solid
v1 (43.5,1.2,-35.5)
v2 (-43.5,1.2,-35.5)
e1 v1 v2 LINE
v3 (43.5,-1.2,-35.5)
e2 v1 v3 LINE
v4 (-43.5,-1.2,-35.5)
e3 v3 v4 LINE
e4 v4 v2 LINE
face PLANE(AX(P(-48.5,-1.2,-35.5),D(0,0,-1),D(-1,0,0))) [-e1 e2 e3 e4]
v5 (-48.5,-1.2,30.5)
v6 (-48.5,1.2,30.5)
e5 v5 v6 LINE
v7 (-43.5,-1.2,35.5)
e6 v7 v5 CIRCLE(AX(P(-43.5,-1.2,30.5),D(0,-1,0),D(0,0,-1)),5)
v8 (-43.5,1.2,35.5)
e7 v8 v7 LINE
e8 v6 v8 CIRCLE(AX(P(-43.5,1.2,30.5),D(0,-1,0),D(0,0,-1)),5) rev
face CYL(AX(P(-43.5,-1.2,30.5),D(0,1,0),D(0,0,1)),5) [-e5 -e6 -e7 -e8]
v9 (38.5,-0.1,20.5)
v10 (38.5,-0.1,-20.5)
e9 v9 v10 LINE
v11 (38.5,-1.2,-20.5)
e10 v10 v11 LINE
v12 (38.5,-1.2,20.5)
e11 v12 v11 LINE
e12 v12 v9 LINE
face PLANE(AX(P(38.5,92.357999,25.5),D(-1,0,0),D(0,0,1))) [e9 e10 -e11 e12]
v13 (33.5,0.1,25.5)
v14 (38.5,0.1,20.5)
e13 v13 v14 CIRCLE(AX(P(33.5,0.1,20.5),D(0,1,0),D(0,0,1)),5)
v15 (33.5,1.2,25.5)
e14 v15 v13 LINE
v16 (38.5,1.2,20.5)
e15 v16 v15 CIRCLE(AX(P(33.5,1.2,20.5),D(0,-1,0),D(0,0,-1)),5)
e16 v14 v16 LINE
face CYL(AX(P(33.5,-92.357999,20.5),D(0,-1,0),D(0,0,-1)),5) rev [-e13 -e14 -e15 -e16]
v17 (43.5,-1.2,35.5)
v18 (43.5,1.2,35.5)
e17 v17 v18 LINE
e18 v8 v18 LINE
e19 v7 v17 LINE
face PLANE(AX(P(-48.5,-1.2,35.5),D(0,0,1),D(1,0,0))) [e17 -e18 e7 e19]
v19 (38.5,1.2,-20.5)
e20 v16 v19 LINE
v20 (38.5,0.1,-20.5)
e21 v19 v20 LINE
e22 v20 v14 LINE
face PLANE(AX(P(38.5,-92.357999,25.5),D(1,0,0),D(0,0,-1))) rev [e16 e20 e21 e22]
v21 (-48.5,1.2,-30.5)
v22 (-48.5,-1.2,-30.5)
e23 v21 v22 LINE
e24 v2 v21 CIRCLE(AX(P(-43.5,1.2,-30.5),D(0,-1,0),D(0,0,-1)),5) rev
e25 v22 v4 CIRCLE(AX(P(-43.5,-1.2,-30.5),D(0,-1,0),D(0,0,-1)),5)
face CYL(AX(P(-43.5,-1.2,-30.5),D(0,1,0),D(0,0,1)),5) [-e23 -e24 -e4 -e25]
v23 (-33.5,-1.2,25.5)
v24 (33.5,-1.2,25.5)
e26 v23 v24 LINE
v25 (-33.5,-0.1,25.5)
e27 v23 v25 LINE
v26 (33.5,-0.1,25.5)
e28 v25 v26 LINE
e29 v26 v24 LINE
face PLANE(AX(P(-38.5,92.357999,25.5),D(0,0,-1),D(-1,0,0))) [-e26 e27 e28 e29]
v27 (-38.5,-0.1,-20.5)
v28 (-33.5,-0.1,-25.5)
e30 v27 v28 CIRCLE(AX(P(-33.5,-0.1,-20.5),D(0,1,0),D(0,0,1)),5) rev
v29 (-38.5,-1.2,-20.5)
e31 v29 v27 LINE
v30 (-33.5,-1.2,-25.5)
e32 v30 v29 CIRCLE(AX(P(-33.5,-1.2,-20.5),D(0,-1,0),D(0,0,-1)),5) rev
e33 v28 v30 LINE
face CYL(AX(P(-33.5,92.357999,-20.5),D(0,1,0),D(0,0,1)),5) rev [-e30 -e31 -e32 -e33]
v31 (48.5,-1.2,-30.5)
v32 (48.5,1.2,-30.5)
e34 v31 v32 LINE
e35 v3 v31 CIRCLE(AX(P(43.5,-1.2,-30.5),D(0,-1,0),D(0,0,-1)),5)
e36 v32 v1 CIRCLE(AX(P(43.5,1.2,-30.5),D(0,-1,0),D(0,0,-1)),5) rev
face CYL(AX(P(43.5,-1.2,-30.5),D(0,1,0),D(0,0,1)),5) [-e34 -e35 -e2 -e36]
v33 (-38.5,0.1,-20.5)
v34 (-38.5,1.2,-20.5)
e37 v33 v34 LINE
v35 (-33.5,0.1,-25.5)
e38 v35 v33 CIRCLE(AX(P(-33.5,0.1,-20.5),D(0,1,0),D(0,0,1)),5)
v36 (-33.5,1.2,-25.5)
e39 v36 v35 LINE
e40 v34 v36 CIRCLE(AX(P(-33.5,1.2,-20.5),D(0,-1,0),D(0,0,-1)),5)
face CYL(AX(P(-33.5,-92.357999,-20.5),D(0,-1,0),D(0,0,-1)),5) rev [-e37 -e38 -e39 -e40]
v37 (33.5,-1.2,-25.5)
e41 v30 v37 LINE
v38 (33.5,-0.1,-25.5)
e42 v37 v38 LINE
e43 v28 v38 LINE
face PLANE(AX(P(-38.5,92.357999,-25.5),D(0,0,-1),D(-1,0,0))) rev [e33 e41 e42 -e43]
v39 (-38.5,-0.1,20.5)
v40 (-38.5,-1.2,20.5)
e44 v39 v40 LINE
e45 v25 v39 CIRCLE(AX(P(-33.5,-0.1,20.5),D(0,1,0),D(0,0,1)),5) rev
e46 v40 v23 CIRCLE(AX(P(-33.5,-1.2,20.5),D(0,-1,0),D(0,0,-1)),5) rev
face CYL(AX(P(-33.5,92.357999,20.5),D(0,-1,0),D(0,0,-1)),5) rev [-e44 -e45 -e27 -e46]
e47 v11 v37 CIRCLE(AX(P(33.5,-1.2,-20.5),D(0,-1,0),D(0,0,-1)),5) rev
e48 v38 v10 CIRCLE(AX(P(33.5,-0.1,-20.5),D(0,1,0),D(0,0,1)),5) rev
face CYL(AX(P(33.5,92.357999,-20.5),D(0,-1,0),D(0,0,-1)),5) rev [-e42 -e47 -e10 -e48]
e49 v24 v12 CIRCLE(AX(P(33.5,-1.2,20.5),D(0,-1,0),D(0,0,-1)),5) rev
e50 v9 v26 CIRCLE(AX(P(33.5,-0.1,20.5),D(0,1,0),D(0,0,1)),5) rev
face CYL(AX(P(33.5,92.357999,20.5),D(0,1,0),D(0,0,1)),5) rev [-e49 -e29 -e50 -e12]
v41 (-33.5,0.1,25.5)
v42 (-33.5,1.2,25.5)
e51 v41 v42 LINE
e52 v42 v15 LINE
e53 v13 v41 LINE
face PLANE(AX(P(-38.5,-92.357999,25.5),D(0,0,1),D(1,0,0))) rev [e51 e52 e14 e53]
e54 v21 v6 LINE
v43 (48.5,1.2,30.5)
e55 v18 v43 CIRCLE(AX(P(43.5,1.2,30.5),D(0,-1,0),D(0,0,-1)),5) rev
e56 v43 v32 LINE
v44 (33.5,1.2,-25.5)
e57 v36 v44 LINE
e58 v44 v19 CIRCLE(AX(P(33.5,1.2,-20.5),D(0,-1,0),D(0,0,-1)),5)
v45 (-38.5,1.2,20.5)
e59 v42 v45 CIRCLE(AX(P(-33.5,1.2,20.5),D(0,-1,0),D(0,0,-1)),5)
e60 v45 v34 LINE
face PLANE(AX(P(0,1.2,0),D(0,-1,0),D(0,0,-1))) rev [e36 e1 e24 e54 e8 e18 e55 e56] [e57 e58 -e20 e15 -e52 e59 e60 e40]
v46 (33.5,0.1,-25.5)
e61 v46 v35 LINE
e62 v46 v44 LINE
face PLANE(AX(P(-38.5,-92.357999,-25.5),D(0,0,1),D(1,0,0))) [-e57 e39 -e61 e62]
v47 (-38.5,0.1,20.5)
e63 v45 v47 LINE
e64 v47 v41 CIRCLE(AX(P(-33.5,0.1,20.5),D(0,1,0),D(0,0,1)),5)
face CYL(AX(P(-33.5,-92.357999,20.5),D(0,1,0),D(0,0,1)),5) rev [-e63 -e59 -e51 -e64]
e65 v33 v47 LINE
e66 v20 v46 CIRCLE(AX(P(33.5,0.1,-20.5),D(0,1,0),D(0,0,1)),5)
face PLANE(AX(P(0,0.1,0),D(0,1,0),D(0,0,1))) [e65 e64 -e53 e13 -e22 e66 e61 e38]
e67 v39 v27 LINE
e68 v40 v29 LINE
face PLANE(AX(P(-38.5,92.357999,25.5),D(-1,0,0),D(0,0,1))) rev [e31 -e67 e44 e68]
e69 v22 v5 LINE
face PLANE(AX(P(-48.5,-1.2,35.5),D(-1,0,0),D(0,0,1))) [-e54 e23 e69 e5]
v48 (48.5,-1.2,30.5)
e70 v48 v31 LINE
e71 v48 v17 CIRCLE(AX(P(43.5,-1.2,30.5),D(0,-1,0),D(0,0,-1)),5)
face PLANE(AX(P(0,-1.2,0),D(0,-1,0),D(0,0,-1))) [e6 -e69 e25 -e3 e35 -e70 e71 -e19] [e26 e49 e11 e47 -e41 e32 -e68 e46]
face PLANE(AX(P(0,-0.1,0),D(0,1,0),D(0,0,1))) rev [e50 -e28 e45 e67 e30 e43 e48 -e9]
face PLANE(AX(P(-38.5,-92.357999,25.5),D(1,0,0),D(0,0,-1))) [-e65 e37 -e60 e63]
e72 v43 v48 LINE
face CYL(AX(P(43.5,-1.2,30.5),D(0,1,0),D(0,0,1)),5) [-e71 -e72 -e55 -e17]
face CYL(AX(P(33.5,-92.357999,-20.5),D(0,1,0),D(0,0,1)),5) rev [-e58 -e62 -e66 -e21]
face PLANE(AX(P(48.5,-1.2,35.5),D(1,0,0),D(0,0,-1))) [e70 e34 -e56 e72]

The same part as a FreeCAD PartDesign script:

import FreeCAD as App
import Part
import Sketcher

V = App.Vector
Q = App.Units.Quantity


def edges_at(feature, points):
    """Names of the edges that pass closest to the given points."""
    edges = feature.Shape.Edges
    near = lambda p: min(range(len(edges)), key=lambda i: edges[i].distToShape(Part.Vertex(*p))[0])
    return sorted({f"Edge{near(p) + 1}" for p in points})


def add_polygon(sketch, points):
    """Adds a closed chain of lines whose ends are joined by coincident constraints."""
    first, n = sketch.GeometryCount, len(points)
    for a, b in zip(points, points[1:] + points[:1]):
        sketch.addGeometry(Part.LineSegment(App.Vector(*a, 0), App.Vector(*b, 0)), False)
    for i in range(n):
        sketch.addConstraint(Sketcher.Constraint("Coincident", first + i, 2, first + (i + 1) % n, 1))

doc = App.newDocument("Part")
body = doc.addObject("PartDesign::Body", "Body")

# Sketch on XZ plane
sketch1 = body.newObject("Sketcher::SketchObject", "Sketch")
sketch1.AttachmentSupport = (doc.getObject("XZ_Plane"), [""])
sketch1.MapMode = "FlatFace"
add_polygon(sketch1, [(-48.5, -35.5), (-48.5, 35.5), (48.5, 35.5), (48.5, -35.5)])  # lines 0-3
sketch1.addConstraint(Sketcher.Constraint("Vertical", 0))
sketch1.addConstraint(Sketcher.Constraint("Horizontal", 1))
sketch1.addConstraint(Sketcher.Constraint("Vertical", 2))
sketch1.addConstraint(Sketcher.Constraint("Horizontal", 3))
sketch1.addConstraint(Sketcher.Constraint("Symmetric", 0, 2, 2, 2, -1, 1))
sketch1.addConstraint(Sketcher.Constraint("DistanceX", 1, 1, 1, 2, Q("97 mm")))
sketch1.addConstraint(Sketcher.Constraint("DistanceY", 0, 1, 0, 2, Q("71 mm")))
pad1 = body.newObject("PartDesign::Pad", "Pad")
pad1.Profile = sketch1
pad1.Type = "TwoLengths"
pad1.Length = 1.2
pad1.Length2 = 1.2
pad1.Reversed = True

# Sketch on XZ plane
sketch2 = body.newObject("Sketcher::SketchObject", "Sketch001")
sketch2.AttachmentSupport = (doc.getObject("XZ_Plane"), [""])
sketch2.MapMode = "FlatFace"
sketch2.AttachmentOffset = App.Placement(V(0, 0, -1.2), App.Rotation())
add_polygon(sketch2, [(-38.5, -25.5), (-38.5, 25.5), (38.5, 25.5), (38.5, -25.5)])  # lines 0-3
sketch2.addConstraint(Sketcher.Constraint("Vertical", 0))
sketch2.addConstraint(Sketcher.Constraint("Horizontal", 1))
sketch2.addConstraint(Sketcher.Constraint("Vertical", 2))
sketch2.addConstraint(Sketcher.Constraint("Horizontal", 3))
sketch2.addConstraint(Sketcher.Constraint("Symmetric", 0, 2, 2, 2, -1, 1))
sketch2.addConstraint(Sketcher.Constraint("DistanceX", 1, 1, 1, 2, Q("77 mm")))
sketch2.addConstraint(Sketcher.Constraint("DistanceY", 0, 1, 0, 2, Q("51 mm")))
pocket1 = body.newObject("PartDesign::Pocket", "Pocket")
pocket1.Profile = sketch2
pocket1.Length = 1.1
pocket1.Reversed = True
doc.recompute()

fillet = body.newObject("PartDesign::Fillet", "Fillet")
fillet.Base = (pocket1, edges_at(pocket1, [
    (38.5, 0.65, 25.5),
    (-38.5, 0.65, 25.5),
    (-38.5, 0.65, -25.5),
    (38.5, 0.65, -25.5),
]))
fillet.Radius = 5
doc.recompute()

mirrored = body.newObject("PartDesign::Mirrored", "Mirrored")
mirrored.Originals = [pocket1]
mirrored.MirrorPlane = (doc.getObject("XZ_Plane"), [""])
body.Tip = mirrored
doc.recompute()

fillet2 = body.newObject("PartDesign::Fillet", "Fillet001")
fillet2.Base = (mirrored, edges_at(mirrored, [
    (38.5, -0.65, 25.5),
    (-38.5, -0.65, 25.5),
    (-38.5, -0.65, -25.5),
    (38.5, -0.65, -25.5),
]))
fillet2.Radius = 5
doc.recompute()

fillet3 = body.newObject("PartDesign::Fillet", "Fillet002")
fillet3.Base = (fillet2, edges_at(fillet2, [
    (48.5, 0, 35.5),
    (-48.5, 0, 35.5),
    (-48.5, 0, -35.5),
    (48.5, 0, -35.5),
]))
fillet3.Radius = 5

doc.recompute()
